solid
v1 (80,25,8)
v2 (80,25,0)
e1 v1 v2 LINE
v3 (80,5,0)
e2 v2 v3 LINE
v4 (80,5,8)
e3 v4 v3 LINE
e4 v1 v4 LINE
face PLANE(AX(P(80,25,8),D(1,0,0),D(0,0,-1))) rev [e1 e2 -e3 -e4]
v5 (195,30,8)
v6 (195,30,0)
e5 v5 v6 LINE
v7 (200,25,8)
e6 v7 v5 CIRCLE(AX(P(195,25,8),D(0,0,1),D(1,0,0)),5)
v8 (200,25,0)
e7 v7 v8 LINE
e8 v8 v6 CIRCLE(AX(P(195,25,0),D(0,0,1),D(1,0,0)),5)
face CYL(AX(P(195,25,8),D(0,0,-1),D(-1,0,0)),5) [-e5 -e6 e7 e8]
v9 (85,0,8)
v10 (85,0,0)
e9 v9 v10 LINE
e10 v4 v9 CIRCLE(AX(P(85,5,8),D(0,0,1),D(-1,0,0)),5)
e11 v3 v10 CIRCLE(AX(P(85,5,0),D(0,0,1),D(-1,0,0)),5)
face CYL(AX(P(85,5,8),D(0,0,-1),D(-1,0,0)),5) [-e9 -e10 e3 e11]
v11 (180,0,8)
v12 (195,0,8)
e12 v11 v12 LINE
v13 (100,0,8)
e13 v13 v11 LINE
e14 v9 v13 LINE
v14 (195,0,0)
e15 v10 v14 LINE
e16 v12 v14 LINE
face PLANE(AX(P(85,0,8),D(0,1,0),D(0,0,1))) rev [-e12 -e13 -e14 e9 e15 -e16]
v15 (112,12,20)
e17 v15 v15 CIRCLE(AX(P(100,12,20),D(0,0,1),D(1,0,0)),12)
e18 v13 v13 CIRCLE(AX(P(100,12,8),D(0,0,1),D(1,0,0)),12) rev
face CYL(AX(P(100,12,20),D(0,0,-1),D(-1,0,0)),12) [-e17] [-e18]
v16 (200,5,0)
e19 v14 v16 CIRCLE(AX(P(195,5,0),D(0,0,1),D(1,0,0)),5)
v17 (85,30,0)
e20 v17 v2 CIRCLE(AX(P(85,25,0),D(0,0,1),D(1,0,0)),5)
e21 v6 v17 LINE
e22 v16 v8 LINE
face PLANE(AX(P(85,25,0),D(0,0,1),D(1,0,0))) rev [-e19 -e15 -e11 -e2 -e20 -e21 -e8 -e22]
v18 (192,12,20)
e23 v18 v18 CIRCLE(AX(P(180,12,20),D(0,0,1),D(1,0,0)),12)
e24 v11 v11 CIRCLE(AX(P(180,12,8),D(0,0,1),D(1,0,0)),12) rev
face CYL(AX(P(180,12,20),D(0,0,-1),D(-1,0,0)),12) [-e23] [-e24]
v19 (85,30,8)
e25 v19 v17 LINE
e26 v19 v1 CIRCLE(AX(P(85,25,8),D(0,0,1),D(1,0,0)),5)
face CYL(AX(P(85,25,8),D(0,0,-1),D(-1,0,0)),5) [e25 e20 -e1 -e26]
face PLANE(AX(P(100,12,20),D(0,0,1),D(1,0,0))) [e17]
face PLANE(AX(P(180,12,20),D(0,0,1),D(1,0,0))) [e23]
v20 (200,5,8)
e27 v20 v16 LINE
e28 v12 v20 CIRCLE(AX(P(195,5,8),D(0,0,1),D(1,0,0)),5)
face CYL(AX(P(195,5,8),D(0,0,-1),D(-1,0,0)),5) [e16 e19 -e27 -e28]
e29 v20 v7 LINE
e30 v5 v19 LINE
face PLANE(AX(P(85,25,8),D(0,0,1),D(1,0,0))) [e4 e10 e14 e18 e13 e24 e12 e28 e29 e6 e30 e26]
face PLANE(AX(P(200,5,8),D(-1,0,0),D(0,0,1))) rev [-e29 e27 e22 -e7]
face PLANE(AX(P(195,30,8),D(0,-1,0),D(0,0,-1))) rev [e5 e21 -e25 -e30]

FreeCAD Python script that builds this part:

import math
import FreeCAD as App
import Part
import Sketcher
from FreeCAD import Vector

doc = App.newDocument("Part")
body = doc.addObject("PartDesign::Body", "Body")

sketch1 = body.newObject("Sketcher::SketchObject", "Sketch")
sketch1.AttachmentSupport = (doc.getObject("XY_Plane"), [""])
sketch1.MapMode = "FlatFace"
sketch1.addGeometry(Part.LineSegment(Vector(85, 0, 0), Vector(195, 0, 0)), False)
sketch1.addGeometry(Part.ArcOfCircle(Part.Circle(Vector(195, 5, 0), Vector(0, 0, 1), 5), math.radians(-90), math.radians(0)), False)
sketch1.addGeometry(Part.LineSegment(Vector(200, 5, 0), Vector(200, 25, 0)), False)
sketch1.addGeometry(Part.ArcOfCircle(Part.Circle(Vector(195, 25, 0), Vector(0, 0, 1), 5), math.radians(0), math.radians(90)), False)
sketch1.addGeometry(Part.LineSegment(Vector(195, 30, 0), Vector(85, 30, 0)), False)
sketch1.addGeometry(Part.ArcOfCircle(Part.Circle(Vector(85, 25, 0), Vector(0, 0, 1), 5), math.radians(90), math.radians(180)), False)
sketch1.addGeometry(Part.LineSegment(Vector(80, 25, 0), Vector(80, 5, 0)), False)
sketch1.addGeometry(Part.ArcOfCircle(Part.Circle(Vector(85, 5, 0), Vector(0, 0, 1), 5), math.radians(180), math.radians(270)), False)
sketch1.addConstraint(Sketcher.Constraint("Tangent", 0, 2, 1, 1))
sketch1.addConstraint(Sketcher.Constraint("Tangent", 1, 2, 2, 1))
sketch1.addConstraint(Sketcher.Constraint("Tangent", 2, 2, 3, 1))
sketch1.addConstraint(Sketcher.Constraint("Tangent", 3, 2, 4, 1))
sketch1.addConstraint(Sketcher.Constraint("Tangent", 4, 2, 5, 1))
sketch1.addConstraint(Sketcher.Constraint("Tangent", 5, 2, 6, 1))
sketch1.addConstraint(Sketcher.Constraint("Tangent", 6, 2, 7, 1))
sketch1.addConstraint(Sketcher.Constraint("Tangent", 7, 2, 0, 1))
sketch1.addConstraint(Sketcher.Constraint("Horizontal", 0))
sketch1.addConstraint(Sketcher.Constraint("Vertical", 2))
sketch1.addConstraint(Sketcher.Constraint("Horizontal", 4))
sketch1.addConstraint(Sketcher.Constraint("Vertical", 6))
sketch1.addConstraint(Sketcher.Constraint("Equal", 1, 3))
sketch1.addConstraint(Sketcher.Constraint("Equal", 3, 5))
sketch1.addConstraint(Sketcher.Constraint("Equal", 5, 7))
sketch1.addConstraint(Sketcher.Constraint("PointOnObject", 0, 2, -1))
sketch1.addConstraint(Sketcher.Constraint("Radius", 1, 5.0))
sketch1.addConstraint(Sketcher.Constraint("DistanceX", 0, 1, 0, 2, 110.0))
sketch1.addConstraint(Sketcher.Constraint("DistanceY", 2, 1, 2, 2, 20.0))
sketch1.addConstraint(Sketcher.Constraint("DistanceX", -1, 1, 1, 3, 195.0))
pad1 = body.newObject("PartDesign::Pad", "Pad")
pad1.Profile = sketch1
pad1.Length = 8

sketch2 = body.newObject("Sketcher::SketchObject", "Sketch001")
sketch2.AttachmentSupport = (doc.getObject("XY_Plane"), [""])
sketch2.MapMode = "FlatFace"
sketch2.addGeometry(Part.Circle(Vector(100, 12, 0), Vector(0, 0, 1), 12), False)
sketch2.addConstraint(Sketcher.Constraint("Diameter", 0, 24.0))
sketch2.addConstraint(Sketcher.Constraint("DistanceX", -1, 1, 0, 3, 100.0))
sketch2.addConstraint(Sketcher.Constraint("DistanceY", -1, 1, 0, 3, 12.0))
pad2 = body.newObject("PartDesign::Pad", "Pad001")
pad2.Profile = sketch2
pad2.Length = 20

sketch3 = body.newObject("Sketcher::SketchObject", "Sketch002")
sketch3.AttachmentSupport = (doc.getObject("XY_Plane"), [""])
sketch3.MapMode = "FlatFace"
sketch3.addGeometry(Part.Circle(Vector(180, 12, 0), Vector(0, 0, 1), 12), False)
sketch3.addConstraint(Sketcher.Constraint("Diameter", 0, 24.0))
sketch3.addConstraint(Sketcher.Constraint("DistanceX", -1, 1, 0, 3, 180.0))
sketch3.addConstraint(Sketcher.Constraint("DistanceY", -1, 1, 0, 3, 12.0))
pad3 = body.newObject("PartDesign::Pad", "Pad002")
pad3.Profile = sketch3
pad3.Length = 20

doc.recompute()
